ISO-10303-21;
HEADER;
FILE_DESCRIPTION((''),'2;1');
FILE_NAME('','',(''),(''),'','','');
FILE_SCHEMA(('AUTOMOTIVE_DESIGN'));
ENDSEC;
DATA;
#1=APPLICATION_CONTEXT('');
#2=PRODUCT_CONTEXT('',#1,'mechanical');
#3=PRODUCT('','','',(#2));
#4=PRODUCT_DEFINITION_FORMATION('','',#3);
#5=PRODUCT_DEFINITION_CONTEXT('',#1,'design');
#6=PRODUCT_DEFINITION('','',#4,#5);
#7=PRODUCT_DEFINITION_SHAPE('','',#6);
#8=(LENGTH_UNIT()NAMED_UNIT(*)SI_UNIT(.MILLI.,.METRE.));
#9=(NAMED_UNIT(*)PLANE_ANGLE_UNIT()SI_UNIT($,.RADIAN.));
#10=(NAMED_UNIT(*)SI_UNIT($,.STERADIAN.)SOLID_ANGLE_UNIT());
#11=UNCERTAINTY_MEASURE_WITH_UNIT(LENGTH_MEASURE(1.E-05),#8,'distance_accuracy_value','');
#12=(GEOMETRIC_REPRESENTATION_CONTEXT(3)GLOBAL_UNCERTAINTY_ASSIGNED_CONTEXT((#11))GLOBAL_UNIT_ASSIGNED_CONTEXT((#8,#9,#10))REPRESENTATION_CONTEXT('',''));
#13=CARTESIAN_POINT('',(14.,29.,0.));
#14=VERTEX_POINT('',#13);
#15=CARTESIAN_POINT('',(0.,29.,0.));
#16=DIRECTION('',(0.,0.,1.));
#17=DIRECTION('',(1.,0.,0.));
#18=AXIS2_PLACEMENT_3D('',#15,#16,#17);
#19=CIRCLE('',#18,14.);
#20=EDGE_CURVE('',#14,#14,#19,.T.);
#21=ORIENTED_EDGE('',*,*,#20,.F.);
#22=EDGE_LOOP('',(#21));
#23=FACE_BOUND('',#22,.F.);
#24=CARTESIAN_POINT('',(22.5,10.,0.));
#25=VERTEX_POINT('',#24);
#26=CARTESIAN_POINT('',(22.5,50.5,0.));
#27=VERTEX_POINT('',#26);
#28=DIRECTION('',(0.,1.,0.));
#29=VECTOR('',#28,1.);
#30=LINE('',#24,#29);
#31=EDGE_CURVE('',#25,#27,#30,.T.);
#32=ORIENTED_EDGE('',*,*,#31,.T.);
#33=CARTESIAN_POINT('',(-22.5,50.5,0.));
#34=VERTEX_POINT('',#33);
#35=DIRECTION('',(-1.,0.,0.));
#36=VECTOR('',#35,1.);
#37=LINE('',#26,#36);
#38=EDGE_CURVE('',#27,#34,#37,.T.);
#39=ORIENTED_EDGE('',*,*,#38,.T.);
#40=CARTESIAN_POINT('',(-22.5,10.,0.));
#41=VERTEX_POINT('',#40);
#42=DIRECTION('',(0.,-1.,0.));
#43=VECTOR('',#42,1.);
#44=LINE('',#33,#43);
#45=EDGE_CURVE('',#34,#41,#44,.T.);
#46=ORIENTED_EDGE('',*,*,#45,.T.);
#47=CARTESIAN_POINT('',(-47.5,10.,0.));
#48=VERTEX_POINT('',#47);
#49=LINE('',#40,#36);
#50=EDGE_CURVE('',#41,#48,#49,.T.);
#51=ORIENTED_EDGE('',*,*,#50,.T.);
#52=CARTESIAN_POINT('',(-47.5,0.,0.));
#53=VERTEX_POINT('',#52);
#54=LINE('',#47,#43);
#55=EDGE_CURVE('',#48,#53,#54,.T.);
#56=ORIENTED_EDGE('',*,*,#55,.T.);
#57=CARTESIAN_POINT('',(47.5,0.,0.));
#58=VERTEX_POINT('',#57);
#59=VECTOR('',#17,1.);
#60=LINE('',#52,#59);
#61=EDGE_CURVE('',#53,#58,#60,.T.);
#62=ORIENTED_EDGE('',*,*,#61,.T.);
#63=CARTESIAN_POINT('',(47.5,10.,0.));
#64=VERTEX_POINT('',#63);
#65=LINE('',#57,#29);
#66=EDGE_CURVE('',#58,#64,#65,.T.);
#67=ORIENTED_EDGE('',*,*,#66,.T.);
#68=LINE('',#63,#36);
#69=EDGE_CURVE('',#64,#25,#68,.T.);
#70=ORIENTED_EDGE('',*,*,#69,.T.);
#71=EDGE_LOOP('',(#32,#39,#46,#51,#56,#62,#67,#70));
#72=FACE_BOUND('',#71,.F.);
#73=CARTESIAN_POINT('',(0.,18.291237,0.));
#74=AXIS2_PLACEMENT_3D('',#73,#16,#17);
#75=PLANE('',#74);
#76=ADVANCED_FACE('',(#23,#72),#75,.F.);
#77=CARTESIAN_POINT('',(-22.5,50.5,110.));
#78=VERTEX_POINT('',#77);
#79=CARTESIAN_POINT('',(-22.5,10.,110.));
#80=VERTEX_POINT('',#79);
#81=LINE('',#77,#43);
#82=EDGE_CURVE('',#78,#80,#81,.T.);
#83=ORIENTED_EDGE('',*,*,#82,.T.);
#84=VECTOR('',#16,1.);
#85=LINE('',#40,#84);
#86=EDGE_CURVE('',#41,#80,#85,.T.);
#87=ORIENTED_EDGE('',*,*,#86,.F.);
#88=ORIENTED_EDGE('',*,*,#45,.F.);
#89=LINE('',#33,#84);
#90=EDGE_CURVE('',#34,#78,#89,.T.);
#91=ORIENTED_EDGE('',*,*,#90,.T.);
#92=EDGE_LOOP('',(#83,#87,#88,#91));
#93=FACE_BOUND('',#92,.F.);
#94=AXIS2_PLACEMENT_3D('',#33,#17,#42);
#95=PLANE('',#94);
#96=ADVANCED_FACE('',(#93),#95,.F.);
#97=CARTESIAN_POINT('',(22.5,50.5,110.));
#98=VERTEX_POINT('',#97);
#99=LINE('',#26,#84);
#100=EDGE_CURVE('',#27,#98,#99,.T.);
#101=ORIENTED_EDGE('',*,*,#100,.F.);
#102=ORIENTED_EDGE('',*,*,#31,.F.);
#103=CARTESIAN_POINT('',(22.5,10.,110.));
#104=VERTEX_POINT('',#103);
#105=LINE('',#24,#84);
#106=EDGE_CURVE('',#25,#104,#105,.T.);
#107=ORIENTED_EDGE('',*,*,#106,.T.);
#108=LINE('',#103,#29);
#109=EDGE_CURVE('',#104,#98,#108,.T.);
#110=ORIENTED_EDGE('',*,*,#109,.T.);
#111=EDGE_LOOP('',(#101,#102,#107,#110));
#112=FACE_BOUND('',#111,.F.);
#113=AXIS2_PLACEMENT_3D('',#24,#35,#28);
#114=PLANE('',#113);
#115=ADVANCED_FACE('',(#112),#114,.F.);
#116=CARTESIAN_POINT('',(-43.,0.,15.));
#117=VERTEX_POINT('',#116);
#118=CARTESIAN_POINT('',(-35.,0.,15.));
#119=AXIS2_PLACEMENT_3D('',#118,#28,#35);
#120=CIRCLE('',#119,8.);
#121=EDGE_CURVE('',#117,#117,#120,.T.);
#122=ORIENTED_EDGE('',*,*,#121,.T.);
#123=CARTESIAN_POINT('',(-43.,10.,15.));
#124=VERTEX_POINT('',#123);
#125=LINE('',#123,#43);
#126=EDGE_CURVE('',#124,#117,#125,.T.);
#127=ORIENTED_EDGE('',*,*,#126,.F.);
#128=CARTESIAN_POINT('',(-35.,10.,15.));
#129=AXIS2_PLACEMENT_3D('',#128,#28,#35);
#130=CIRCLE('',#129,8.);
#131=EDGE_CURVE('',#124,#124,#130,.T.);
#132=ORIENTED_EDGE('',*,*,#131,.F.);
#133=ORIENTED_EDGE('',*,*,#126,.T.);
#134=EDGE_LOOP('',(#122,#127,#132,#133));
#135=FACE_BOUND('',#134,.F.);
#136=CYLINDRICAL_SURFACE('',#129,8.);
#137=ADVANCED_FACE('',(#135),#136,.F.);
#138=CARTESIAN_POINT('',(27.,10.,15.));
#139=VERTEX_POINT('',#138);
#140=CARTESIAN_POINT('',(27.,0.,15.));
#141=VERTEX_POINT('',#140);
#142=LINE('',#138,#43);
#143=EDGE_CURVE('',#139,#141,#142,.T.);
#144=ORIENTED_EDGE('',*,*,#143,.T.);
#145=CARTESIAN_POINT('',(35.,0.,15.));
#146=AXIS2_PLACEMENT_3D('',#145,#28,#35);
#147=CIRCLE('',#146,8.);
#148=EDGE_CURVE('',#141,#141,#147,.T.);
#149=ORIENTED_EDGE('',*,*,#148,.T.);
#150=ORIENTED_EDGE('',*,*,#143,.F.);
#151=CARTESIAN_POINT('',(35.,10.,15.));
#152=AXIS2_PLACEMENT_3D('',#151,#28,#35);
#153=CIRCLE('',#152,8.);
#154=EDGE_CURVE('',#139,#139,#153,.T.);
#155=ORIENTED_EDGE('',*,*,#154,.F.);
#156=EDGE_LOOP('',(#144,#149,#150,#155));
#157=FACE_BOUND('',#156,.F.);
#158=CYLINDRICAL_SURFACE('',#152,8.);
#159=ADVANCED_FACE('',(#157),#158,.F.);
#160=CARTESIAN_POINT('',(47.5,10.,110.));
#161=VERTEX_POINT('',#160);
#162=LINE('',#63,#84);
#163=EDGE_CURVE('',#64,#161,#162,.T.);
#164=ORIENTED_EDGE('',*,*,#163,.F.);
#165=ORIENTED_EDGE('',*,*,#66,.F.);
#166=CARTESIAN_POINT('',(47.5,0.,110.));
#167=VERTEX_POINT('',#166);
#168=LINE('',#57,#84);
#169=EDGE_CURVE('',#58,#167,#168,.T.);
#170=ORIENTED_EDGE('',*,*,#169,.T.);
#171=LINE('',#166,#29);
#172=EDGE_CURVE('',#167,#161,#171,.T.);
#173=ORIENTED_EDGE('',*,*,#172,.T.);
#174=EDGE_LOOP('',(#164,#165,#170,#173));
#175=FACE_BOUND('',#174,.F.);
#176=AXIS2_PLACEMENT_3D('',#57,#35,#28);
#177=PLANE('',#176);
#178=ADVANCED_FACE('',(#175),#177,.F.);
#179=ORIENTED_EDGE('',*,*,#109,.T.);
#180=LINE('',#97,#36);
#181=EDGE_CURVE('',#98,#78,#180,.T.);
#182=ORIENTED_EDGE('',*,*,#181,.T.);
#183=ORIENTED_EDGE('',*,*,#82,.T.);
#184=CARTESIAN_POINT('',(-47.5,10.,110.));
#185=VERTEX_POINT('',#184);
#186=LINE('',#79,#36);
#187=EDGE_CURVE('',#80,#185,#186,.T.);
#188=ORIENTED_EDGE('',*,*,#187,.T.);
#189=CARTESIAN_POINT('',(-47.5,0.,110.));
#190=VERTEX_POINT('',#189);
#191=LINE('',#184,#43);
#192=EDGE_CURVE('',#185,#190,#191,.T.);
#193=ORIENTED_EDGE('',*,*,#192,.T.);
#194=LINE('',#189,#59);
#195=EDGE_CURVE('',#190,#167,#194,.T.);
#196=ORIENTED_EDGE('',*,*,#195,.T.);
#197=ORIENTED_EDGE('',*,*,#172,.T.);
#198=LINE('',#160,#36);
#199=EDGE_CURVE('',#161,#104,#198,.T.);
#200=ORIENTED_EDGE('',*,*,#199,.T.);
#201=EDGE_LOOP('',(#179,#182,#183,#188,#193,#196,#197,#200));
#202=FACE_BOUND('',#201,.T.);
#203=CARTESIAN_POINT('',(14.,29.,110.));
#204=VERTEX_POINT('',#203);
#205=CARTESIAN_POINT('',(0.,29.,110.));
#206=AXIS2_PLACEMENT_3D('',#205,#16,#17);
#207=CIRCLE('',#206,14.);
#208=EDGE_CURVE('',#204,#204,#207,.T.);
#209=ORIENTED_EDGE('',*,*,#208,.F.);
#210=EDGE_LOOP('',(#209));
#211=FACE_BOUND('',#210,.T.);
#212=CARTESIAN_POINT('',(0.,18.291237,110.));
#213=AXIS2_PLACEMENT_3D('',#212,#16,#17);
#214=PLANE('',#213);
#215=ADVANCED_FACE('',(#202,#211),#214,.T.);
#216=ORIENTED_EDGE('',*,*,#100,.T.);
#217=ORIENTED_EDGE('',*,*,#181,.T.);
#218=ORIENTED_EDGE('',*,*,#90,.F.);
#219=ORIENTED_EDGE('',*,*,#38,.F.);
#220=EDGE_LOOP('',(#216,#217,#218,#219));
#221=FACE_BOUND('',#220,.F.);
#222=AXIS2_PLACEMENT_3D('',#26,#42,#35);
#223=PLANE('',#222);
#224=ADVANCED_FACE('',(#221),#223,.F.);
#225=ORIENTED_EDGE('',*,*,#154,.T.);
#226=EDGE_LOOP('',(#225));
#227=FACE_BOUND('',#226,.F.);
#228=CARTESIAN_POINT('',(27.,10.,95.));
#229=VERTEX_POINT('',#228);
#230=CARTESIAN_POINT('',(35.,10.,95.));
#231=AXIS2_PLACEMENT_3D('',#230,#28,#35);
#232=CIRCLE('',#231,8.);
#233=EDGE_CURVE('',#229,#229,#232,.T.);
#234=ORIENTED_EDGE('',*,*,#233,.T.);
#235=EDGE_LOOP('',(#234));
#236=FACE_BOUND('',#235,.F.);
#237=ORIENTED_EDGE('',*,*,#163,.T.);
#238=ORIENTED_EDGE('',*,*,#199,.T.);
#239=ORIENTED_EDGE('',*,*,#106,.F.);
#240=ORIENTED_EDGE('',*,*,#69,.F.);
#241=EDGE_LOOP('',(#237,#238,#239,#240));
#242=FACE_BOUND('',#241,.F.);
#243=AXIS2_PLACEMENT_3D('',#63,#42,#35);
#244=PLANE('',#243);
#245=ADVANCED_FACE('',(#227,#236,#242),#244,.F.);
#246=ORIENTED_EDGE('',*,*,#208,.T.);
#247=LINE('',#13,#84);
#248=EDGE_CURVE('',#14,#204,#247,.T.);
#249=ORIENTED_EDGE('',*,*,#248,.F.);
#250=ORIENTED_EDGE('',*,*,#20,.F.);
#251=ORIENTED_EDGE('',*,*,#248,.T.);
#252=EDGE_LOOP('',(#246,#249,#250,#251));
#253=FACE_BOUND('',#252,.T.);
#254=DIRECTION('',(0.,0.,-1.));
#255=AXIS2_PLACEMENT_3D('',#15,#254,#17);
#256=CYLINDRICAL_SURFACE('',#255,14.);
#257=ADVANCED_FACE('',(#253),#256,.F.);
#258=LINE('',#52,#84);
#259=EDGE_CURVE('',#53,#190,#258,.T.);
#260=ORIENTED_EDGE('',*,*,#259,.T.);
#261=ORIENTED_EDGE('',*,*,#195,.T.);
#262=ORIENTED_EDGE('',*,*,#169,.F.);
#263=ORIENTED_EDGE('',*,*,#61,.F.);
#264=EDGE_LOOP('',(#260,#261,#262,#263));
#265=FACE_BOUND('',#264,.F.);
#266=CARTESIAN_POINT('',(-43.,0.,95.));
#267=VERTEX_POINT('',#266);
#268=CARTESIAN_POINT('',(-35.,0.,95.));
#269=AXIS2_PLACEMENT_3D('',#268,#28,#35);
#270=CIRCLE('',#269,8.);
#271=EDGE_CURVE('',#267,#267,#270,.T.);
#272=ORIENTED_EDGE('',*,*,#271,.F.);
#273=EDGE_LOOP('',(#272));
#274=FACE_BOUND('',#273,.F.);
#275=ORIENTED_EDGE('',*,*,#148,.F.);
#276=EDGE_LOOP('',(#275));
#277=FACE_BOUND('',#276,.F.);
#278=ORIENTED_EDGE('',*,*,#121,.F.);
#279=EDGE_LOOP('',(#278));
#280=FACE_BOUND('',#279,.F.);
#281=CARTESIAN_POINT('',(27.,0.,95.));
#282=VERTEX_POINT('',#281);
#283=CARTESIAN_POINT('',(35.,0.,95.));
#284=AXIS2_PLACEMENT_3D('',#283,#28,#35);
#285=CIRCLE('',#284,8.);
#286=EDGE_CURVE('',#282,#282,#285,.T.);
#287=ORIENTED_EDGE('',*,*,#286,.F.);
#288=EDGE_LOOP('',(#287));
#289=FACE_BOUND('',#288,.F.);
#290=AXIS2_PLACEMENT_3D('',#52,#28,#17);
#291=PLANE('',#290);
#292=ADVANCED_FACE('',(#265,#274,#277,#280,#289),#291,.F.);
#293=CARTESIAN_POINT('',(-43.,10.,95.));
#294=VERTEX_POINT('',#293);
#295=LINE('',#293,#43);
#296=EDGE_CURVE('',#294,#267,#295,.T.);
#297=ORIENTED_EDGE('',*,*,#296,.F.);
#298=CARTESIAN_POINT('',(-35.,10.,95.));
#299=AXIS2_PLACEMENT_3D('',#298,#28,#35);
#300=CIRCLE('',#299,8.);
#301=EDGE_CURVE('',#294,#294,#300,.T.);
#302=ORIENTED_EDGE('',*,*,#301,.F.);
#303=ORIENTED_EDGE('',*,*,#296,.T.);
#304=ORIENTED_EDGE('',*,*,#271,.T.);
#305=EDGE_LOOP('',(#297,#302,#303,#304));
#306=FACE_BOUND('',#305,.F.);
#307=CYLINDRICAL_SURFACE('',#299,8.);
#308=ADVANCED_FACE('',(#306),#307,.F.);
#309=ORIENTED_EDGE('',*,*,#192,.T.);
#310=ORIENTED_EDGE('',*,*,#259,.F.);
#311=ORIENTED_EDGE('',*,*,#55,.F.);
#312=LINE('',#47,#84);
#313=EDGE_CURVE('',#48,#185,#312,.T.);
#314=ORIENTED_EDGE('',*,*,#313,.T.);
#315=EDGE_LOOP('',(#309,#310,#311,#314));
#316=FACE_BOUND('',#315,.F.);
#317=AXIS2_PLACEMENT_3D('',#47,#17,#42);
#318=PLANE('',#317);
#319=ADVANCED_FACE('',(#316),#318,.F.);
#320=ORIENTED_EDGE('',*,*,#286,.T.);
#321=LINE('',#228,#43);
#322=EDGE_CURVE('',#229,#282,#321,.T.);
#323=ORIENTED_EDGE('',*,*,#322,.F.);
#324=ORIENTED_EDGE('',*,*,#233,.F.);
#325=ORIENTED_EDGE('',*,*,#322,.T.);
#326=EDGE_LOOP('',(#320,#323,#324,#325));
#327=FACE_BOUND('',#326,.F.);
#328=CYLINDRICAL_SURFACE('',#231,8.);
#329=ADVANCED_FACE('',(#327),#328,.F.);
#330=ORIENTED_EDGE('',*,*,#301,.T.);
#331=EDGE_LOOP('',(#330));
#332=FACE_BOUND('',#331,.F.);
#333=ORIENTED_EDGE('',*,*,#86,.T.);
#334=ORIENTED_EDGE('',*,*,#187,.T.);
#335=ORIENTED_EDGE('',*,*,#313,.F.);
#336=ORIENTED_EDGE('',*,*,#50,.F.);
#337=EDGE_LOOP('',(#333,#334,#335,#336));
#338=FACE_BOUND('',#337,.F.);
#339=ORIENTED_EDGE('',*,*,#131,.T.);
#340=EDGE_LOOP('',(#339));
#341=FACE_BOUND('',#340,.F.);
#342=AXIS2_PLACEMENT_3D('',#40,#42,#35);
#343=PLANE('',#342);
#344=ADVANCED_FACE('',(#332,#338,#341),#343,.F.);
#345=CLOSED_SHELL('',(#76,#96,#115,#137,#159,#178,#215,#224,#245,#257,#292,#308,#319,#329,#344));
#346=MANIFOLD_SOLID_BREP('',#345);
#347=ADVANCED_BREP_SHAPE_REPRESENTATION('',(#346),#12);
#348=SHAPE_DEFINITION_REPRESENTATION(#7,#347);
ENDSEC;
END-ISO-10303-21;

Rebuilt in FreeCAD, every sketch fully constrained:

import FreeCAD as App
import Part
import Sketcher

V = App.Vector
Q = App.Units.Quantity

doc = App.newDocument("Part")
body = doc.addObject("PartDesign::Body", "Body")

sketch1 = body.newObject("Sketcher::SketchObject", "Sketch")
sketch1.AttachmentSupport = (doc.getObject("XY_Plane"), [""])
sketch1.MapMode = "FlatFace"
sketch1.addGeometry([
    Part.LineSegment(V(-47.5, 10, 0), V(-47.5, 0, 0)),
    Part.LineSegment(V(-47.5, 0, 0), V(47.5, 0, 0)),
    Part.LineSegment(V(47.5, 0, 0), V(47.5, 10, 0)),
    Part.LineSegment(V(47.5, 10, 0), V(22.5, 10, 0)),
    Part.LineSegment(V(22.5, 10, 0), V(22.5, 50.5, 0)),
    Part.LineSegment(V(22.5, 50.5, 0), V(-22.5, 50.5, 0)),
    Part.LineSegment(V(-22.5, 50.5, 0), V(-22.5, 10, 0)),
    Part.LineSegment(V(-22.5, 10, 0), V(-47.5, 10, 0)),
    Part.Circle(V(0, 29, 0), V(0, 0, 1), 14),
], False)
sketch1.addConstraint([
    Sketcher.Constraint("Coincident", 0, 2, 1, 1),
    Sketcher.Constraint("Coincident", 1, 2, 2, 1),
    Sketcher.Constraint("Coincident", 2, 2, 3, 1),
    Sketcher.Constraint("Coincident", 3, 2, 4, 1),
    Sketcher.Constraint("Coincident", 4, 2, 5, 1),
    Sketcher.Constraint("Coincident", 5, 2, 6, 1),
    Sketcher.Constraint("Coincident", 6, 2, 7, 1),
    Sketcher.Constraint("Coincident", 7, 2, 0, 1),
    Sketcher.Constraint("Vertical", 0),
    Sketcher.Constraint("Horizontal", 1),
    Sketcher.Constraint("Vertical", 2),
    Sketcher.Constraint("Horizontal", 3),
    Sketcher.Constraint("Vertical", 4),
    Sketcher.Constraint("Horizontal", 5),
    Sketcher.Constraint("Vertical", 6),
    Sketcher.Constraint("Horizontal", 7),
    Sketcher.Constraint("Symmetric", 0, 2, 1, 2, -1, 1),
    Sketcher.Constraint("Symmetric", 3, 2, 6, 2, -2),
    Sketcher.Constraint("PointOnObject", 8, 3, -2),
    Sketcher.Constraint("Diameter", 8, Q("28 mm")),
    Sketcher.Constraint("DistanceX", 1, 1, 1, 2, Q("95 mm")),
    Sketcher.Constraint("DistanceX", 3, 2, 3, 1, Q("25 mm")),
    Sketcher.Constraint("DistanceY", 0, 2, 0, 1, Q("10 mm")),
    Sketcher.Constraint("DistanceY", 4, 1, 4, 2, Q("40.5 mm")),
    Sketcher.Constraint("DistanceY", -1, 1, 8, 3, Q("29 mm")),
])
pad1 = body.newObject("PartDesign::Pad", "Pad")
pad1.Profile = sketch1
pad1.Length = 110

sketch2 = body.newObject("Sketcher::SketchObject", "Sketch001")
sketch2.AttachmentSupport = (doc.getObject("XZ_Plane"), [""])
sketch2.MapMode = "FlatFace"
sketch2.AttachmentOffset = App.Placement(V(0, 0, -10), App.Rotation())
sketch2.addGeometry([
    Part.Circle(V(35, 95, 0), V(0, 0, 1), 8),
    Part.Circle(V(35, 15, 0), V(0, 0, 1), 8),
    Part.Circle(V(-35, 95, 0), V(0, 0, 1), 8),
    Part.Circle(V(-35, 15, 0), V(0, 0, 1), 8),
], False)
sketch2.addConstraint([
    Sketcher.Constraint("Equal", 0, 1),
    Sketcher.Constraint("Equal", 1, 2),
    Sketcher.Constraint("Equal", 2, 3),
    Sketcher.Constraint("Symmetric", 0, 3, 2, 3, -2),
    Sketcher.Constraint("Symmetric", 1, 3, 3, 3, -2),
    Sketcher.Constraint("Vertical", 0, 3, 1, 3),
    Sketcher.Constraint("Diameter", 0, Q("16 mm")),
    Sketcher.Constraint("DistanceX", -1, 1, 0, 3, Q("35 mm")),
    Sketcher.Constraint("DistanceY", -1, 1, 0, 3, Q("95 mm")),
    Sketcher.Constraint("DistanceY", -1, 1, 1, 3, Q("15 mm")),
])
pocket1 = body.newObject("PartDesign::Pocket", "Pocket")
pocket1.Profile = sketch2
pocket1.Length = 25
pocket1.Reversed = True

doc.recompute()
